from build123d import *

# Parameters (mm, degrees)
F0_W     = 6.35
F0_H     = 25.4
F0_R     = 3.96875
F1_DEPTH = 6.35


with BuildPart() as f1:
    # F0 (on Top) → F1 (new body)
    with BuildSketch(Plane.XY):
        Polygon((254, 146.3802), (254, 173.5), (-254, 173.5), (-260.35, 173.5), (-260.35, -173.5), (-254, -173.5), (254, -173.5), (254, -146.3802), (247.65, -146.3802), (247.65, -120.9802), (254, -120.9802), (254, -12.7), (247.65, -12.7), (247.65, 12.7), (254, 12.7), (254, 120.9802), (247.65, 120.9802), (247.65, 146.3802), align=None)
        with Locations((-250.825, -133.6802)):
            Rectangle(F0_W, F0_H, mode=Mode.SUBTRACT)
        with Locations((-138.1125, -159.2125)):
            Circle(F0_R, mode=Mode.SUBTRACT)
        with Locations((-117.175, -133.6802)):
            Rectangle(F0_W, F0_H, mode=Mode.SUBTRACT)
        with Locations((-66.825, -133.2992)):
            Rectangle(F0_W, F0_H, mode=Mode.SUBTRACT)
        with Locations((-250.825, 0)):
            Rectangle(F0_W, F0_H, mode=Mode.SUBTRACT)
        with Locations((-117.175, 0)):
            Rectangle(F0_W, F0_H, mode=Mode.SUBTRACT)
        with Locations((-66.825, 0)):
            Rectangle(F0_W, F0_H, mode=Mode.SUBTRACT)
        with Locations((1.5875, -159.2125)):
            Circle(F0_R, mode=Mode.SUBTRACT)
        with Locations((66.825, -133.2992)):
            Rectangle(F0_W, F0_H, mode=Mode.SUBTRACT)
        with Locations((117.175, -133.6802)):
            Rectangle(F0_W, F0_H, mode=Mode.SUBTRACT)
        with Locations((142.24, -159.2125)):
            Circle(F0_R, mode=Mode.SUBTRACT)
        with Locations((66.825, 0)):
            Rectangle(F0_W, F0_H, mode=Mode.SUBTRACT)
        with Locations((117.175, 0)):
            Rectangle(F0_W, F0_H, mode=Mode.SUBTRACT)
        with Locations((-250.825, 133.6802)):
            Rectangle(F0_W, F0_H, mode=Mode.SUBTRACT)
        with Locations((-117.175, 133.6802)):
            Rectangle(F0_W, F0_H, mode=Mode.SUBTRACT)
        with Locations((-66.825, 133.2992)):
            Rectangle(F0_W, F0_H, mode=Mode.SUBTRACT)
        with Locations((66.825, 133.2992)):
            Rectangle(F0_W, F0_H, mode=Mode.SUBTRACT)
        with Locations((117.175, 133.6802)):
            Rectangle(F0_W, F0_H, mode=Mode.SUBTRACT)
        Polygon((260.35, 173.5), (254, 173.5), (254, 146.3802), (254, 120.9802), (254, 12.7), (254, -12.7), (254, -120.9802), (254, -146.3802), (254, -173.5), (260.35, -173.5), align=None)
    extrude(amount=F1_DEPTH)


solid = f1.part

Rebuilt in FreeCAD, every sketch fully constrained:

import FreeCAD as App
import Part
import Sketcher
from FreeCAD import Vector
Q = App.Units.Quantity


def add_polygon(sketch, points):
    """Adds a closed chain of lines whose ends are joined by coincident constraints."""
    first, n = sketch.GeometryCount, len(points)
    for a, b in zip(points, points[1:] + points[:1]):
        sketch.addGeometry(Part.LineSegment(App.Vector(*a, 0), App.Vector(*b, 0)), False)
    for i in range(n):
        sketch.addConstraint(Sketcher.Constraint("Coincident", first + i, 2, first + (i + 1) % n, 1))

doc = App.newDocument("Part")
body = doc.addObject("PartDesign::Body", "Body")

# Sketch on XY plane
sketch1 = doc.addObject("Sketcher::SketchObject", "Sketch")
body.addObject(sketch1)
sketch1.AttachmentSupport = (doc.XY_Plane, [""])
sketch1.MapMode = "FlatFace"
add_polygon(sketch1, [(-260.4, 173.5), (-260.4, -173.5), (260.4, -173.5), (260.4, 173.5)])  # lines 0-3
add_polygon(sketch1, [(247.7, 146.4), (254, 146.4), (254, 121), (247.7, 121)])  # lines 4-7
add_polygon(sketch1, [(247.7, 12.7), (254, 12.7), (254, -12.7), (247.7, -12.7)])  # lines 8-11
add_polygon(sketch1, [(254, -146.4), (247.7, -146.4), (247.7, -121), (254, -121)])  # lines 12-15
add_polygon(sketch1, [(-247.7, -146.4), (-254, -146.4), (-254, -121), (-247.7, -121)])  # lines 16-19
sketch1.addGeometry(Part.Circle(Vector(-138.1, -159.2, 0), Vector(0, 0, 1), 4), False)  # 20
add_polygon(sketch1, [(-114, -146.4), (-120.3, -146.4), (-120.3, -121), (-114, -121)])  # lines 21-24
add_polygon(sketch1, [(-63.6, -146), (-70, -146), (-70, -120.6), (-63.6, -120.6)])  # lines 25-28
sketch1.addGeometry(Part.Circle(Vector(1.6, -159.2, 0), Vector(0, 0, 1), 4), False)  # 29
add_polygon(sketch1, [(70, -146), (63.6, -146), (63.6, -120.6), (70, -120.6)])  # lines 30-33
sketch1.addGeometry(Part.Circle(Vector(142.2, -159.2, 0), Vector(0, 0, 1), 4), False)  # 34
add_polygon(sketch1, [(120.3, -146.4), (114, -146.4), (114, -121), (120.3, -121)])  # lines 35-38
add_polygon(sketch1, [(-247.7, -12.7), (-254, -12.7), (-254, 12.7), (-247.7, 12.7)])  # lines 39-42
add_polygon(sketch1, [(-114, -12.7), (-120.3, -12.7), (-120.3, 12.7), (-114, 12.7)])  # lines 43-46
add_polygon(sketch1, [(-63.6, -12.7), (-70, -12.7), (-70, 12.7), (-63.6, 12.7)])  # lines 47-50
add_polygon(sketch1, [(-247.7, 121), (-254, 121), (-254, 146.4), (-247.7, 146.4)])  # lines 51-54
add_polygon(sketch1, [(-114, 121), (-120.3, 121), (-120.3, 146.4), (-114, 146.4)])  # lines 55-58
add_polygon(sketch1, [(-63.6, 120.6), (-70, 120.6), (-70, 146), (-63.6, 146)])  # lines 59-62
add_polygon(sketch1, [(70, -12.7), (63.6, -12.7), (63.6, 12.7), (70, 12.7)])  # lines 63-66
add_polygon(sketch1, [(120.3, -12.7), (114, -12.7), (114, 12.7), (120.3, 12.7)])  # lines 67-70
add_polygon(sketch1, [(70, 120.6), (63.6, 120.6), (63.6, 146), (70, 146)])  # lines 71-74
add_polygon(sketch1, [(120.3, 121), (114, 121), (114, 146.4), (120.3, 146.4)])  # lines 75-78
sketch1.addConstraint([
    Sketcher.Constraint("Vertical", 0),
    Sketcher.Constraint("Horizontal", 1),
    Sketcher.Constraint("Vertical", 2),
    Sketcher.Constraint("Horizontal", 3),
    Sketcher.Constraint("Horizontal", 4),
    Sketcher.Constraint("Vertical", 5),
    Sketcher.Constraint("Horizontal", 6),
    Sketcher.Constraint("Vertical", 7),
    Sketcher.Constraint("Horizontal", 8),
    Sketcher.Constraint("Vertical", 9),
    Sketcher.Constraint("Horizontal", 10),
    Sketcher.Constraint("Vertical", 11),
    Sketcher.Constraint("Horizontal", 12),
    Sketcher.Constraint("Vertical", 13),
    Sketcher.Constraint("Horizontal", 14),
    Sketcher.Constraint("Vertical", 15),
    Sketcher.Constraint("Horizontal", 16),
    Sketcher.Constraint("Vertical", 17),
    Sketcher.Constraint("Horizontal", 18),
    Sketcher.Constraint("Vertical", 19),
    Sketcher.Constraint("Horizontal", 21),
    Sketcher.Constraint("Vertical", 22),
    Sketcher.Constraint("Horizontal", 23),
    Sketcher.Constraint("Vertical", 24),
    Sketcher.Constraint("Horizontal", 25),
    Sketcher.Constraint("Vertical", 26),
    Sketcher.Constraint("Horizontal", 27),
    Sketcher.Constraint("Vertical", 28),
    Sketcher.Constraint("Horizontal", 30),
    Sketcher.Constraint("Vertical", 31),
    Sketcher.Constraint("Horizontal", 32),
    Sketcher.Constraint("Vertical", 33),
    Sketcher.Constraint("Horizontal", 35),
    Sketcher.Constraint("Vertical", 36),
    Sketcher.Constraint("Horizontal", 37),
    Sketcher.Constraint("Vertical", 38),
    Sketcher.Constraint("Horizontal", 39),
    Sketcher.Constraint("Vertical", 40),
    Sketcher.Constraint("Horizontal", 41),
    Sketcher.Constraint("Vertical", 42),
    Sketcher.Constraint("Horizontal", 43),
    Sketcher.Constraint("Vertical", 44),
    Sketcher.Constraint("Horizontal", 45),
    Sketcher.Constraint("Vertical", 46),
    Sketcher.Constraint("Horizontal", 47),
    Sketcher.Constraint("Vertical", 48),
    Sketcher.Constraint("Horizontal", 49),
    Sketcher.Constraint("Vertical", 50),
    Sketcher.Constraint("Horizontal", 51),
    Sketcher.Constraint("Vertical", 52),
    Sketcher.Constraint("Horizontal", 53),
    Sketcher.Constraint("Vertical", 54),
    Sketcher.Constraint("Horizontal", 55),
    Sketcher.Constraint("Vertical", 56),
    Sketcher.Constraint("Horizontal", 57),
    Sketcher.Constraint("Vertical", 58),
    Sketcher.Constraint("Horizontal", 59),
    Sketcher.Constraint("Vertical", 60),
    Sketcher.Constraint("Horizontal", 61),
    Sketcher.Constraint("Vertical", 62),
    Sketcher.Constraint("Horizontal", 63),
    Sketcher.Constraint("Vertical", 64),
    Sketcher.Constraint("Horizontal", 65),
    Sketcher.Constraint("Vertical", 66),
    Sketcher.Constraint("Horizontal", 67),
    Sketcher.Constraint("Vertical", 68),
    Sketcher.Constraint("Horizontal", 69),
    Sketcher.Constraint("Vertical", 70),
    Sketcher.Constraint("Horizontal", 71),
    Sketcher.Constraint("Vertical", 72),
    Sketcher.Constraint("Horizontal", 73),
    Sketcher.Constraint("Vertical", 74),
    Sketcher.Constraint("Horizontal", 75),
    Sketcher.Constraint("Vertical", 76),
    Sketcher.Constraint("Horizontal", 77),
    Sketcher.Constraint("Vertical", 78),
    Sketcher.Constraint("Equal", 20, 29),
    Sketcher.Constraint("Equal", 29, 34),
    Sketcher.Constraint("Symmetric", 0, 2, 2, 2, -1, 1),
    Sketcher.Constraint("Symmetric", 4, 2, 16, 2, -1, 1),
    Sketcher.Constraint("Symmetric", 6, 2, 18, 2, -1, 1),
    Sketcher.Constraint("Symmetric", 8, 2, 39, 2, -1, 1),
    Sketcher.Constraint("Symmetric", 10, 2, 41, 2, -1, 1),
    Sketcher.Constraint("Symmetric", 14, 2, 51, 2, -1, 1),
    Sketcher.Constraint("Symmetric", 12, 2, 53, 2, -1, 1),
    Sketcher.Constraint("Symmetric", 37, 2, 55, 2, -1, 1),
    Sketcher.Constraint("Symmetric", 35, 2, 57, 2, -1, 1),
    Sketcher.Constraint("Symmetric", 32, 2, 59, 2, -1, 1),
    Sketcher.Constraint("Symmetric", 30, 2, 61, 2, -1, 1),
    Sketcher.Constraint("Symmetric", 49, 2, 63, 2, -1, 1),
    Sketcher.Constraint("Symmetric", 47, 2, 65, 2, -1, 1),
    Sketcher.Constraint("Symmetric", 45, 2, 67, 2, -1, 1),
    Sketcher.Constraint("Symmetric", 43, 2, 69, 2, -1, 1),
    Sketcher.Constraint("Symmetric", 27, 2, 71, 2, -1, 1),
    Sketcher.Constraint("Symmetric", 25, 2, 73, 2, -1, 1),
    Sketcher.Constraint("Symmetric", 23, 2, 75, 2, -1, 1),
    Sketcher.Constraint("Symmetric", 21, 2, 77, 2, -1, 1),
    Sketcher.Constraint("Symmetric", 15, 2, 16, 2, -2),
    Sketcher.Constraint("Symmetric", 13, 2, 18, 2, -2),
    Sketcher.Constraint("Symmetric", 28, 2, 30, 2, -2),
    Sketcher.Constraint("Symmetric", 26, 2, 32, 2, -2),
    Sketcher.Constraint("Symmetric", 24, 2, 35, 2, -2),
    Sketcher.Constraint("Symmetric", 22, 2, 37, 2, -2),
    Sketcher.Constraint("Horizontal", 20, 3, 29, 3),
    Sketcher.Constraint("Horizontal", 29, 3, 34, 3),
    Sketcher.Constraint("Horizontal", 19, 2, 21, 2),
    Sketcher.Constraint("Horizontal", 18, 2, 22, 2),
    Sketcher.Constraint("Horizontal", 10, 2, 39, 2),
    Sketcher.Constraint("Horizontal", 42, 2, 43, 2),
    Sketcher.Constraint("Horizontal", 41, 2, 44, 2),
    Sketcher.Constraint("Horizontal", 46, 2, 47, 2),
    Sketcher.Constraint("Horizontal", 45, 2, 48, 2),
    Sketcher.Constraint("Vertical", 5, 2, 8, 2),
    Sketcher.Constraint("Vertical", 7, 2, 10, 2),
    Sketcher.Constraint("Vertical", 22, 2, 43, 2),
    Sketcher.Constraint("Vertical", 24, 2, 45, 2),
    Sketcher.Constraint("Vertical", 26, 2, 47, 2),
    Sketcher.Constraint("Vertical", 28, 2, 49, 2),
    Sketcher.Constraint("Equal", 18, 21),
    Sketcher.Constraint("Equal", 23, 25),
    Sketcher.Constraint("Equal", 7, 9),
    Sketcher.Constraint("Equal", 24, 26),
    Sketcher.Constraint("DistanceY", 5, 2, 5, 1, Q("1 in")),
    Sketcher.Constraint("Diameter", 20, Q("0.3125 in")),
    Sketcher.Constraint("DistanceX", 1, 1, 1, 2, Q("20.5 in")),
    Sketcher.Constraint("DistanceX", -1, 1, 4, 2, Q("10 in")),
    Sketcher.Constraint("DistanceX", 4, 1, 4, 2, Q("0.25 in")),
    Sketcher.Constraint("DistanceX", -1, 1, 34, 3, Q("5.6 in")),
    Sketcher.Constraint("DistanceX", 20, 3, -1, 1, Q("5.4375 in")),
    Sketcher.Constraint("DistanceX", -1, 1, 29, 3, Q("0.0625 in")),
    Sketcher.Constraint("DistanceY", -1, 1, 4, 2, Q("5.763 in")),
    Sketcher.Constraint("DistanceY", 25, 2, -1, 1, Q("5.748 in")),
    Sketcher.Constraint("DistanceY", 0, 2, 0, 1, 347.0),
    Sketcher.Constraint("DistanceY", 20, 3, -1, 1, 159.2125),
    Sketcher.Constraint("DistanceX", 21, 2, -1, 1, 120.35),
    Sketcher.Constraint("DistanceX", 25, 2, -1, 1, 70.0),
])
pad1 = doc.addObject("PartDesign::Pad", "Pad")
body.addObject(pad1)
pad1.Profile = sketch1
pad1.Length = Q("0.25 in")

doc.recompute()
